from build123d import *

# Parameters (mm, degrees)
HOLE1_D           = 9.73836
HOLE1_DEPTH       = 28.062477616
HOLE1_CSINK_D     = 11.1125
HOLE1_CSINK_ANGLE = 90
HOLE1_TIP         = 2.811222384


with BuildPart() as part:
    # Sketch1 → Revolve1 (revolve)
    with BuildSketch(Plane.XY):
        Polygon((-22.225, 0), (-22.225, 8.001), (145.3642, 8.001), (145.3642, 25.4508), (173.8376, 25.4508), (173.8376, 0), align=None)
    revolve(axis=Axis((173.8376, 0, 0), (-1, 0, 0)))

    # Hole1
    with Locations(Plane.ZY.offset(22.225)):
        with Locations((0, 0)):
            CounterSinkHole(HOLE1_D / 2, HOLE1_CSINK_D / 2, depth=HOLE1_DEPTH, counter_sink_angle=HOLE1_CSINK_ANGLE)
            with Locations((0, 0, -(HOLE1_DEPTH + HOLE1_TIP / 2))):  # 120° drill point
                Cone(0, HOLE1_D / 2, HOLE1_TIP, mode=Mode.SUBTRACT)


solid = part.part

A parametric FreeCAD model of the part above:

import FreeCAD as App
import Part
import Sketcher

V = App.Vector
Q = App.Units.Quantity


def add_polygon(sketch, points):
    """Adds a closed chain of lines whose ends are joined by coincident constraints."""
    first, n = sketch.GeometryCount, len(points)
    for a, b in zip(points, points[1:] + points[:1]):
        sketch.addGeometry(Part.LineSegment(App.Vector(*a, 0), App.Vector(*b, 0)), False)
    for i in range(n):
        sketch.addConstraint(Sketcher.Constraint("Coincident", first + i, 2, first + (i + 1) % n, 1))

doc = App.newDocument("Part")
body = doc.addObject("PartDesign::Body", "Body")

sketch1 = body.newObject("Sketcher::SketchObject", "Sketch")
sketch1.AttachmentSupport = (doc.getObject("XY_Plane"), [""])
sketch1.MapMode = "FlatFace"
add_polygon(sketch1, [(-22, 8), (-22, 0), (174, 0), (174, 25), (145, 25), (145, 8)])
sketch1.addConstraint([
    Sketcher.Constraint("Vertical", 0),
    Sketcher.Constraint("Horizontal", 1),
    Sketcher.Constraint("Vertical", 2),
    Sketcher.Constraint("Horizontal", 3),
    Sketcher.Constraint("Vertical", 4),
    Sketcher.Constraint("Horizontal", 5),
    Sketcher.Constraint("PointOnObject", 0, 2, -1),
    Sketcher.Constraint("DistanceX", 1, 1, 1, 2, Q("7.719 in")),
    Sketcher.Constraint("DistanceX", 3, 2, 3, 1, Q("1.121 in")),
    Sketcher.Constraint("DistanceY", 0, 2, 0, 1, Q("0.315 in")),
    Sketcher.Constraint("DistanceY", 2, 1, 2, 2, Q("1.002 in")),
    Sketcher.Constraint("DistanceX", 0, 2, -1, 1, Q("0.875 in")),
])
revolution = body.newObject("PartDesign::Revolution", "Revolution")
revolution.Profile = sketch1
revolution.ReferenceAxis = (sketch1, ["H_Axis"])
revolution.Angle = 360

sketch2 = body.newObject("Sketcher::SketchObject", "Sketch001")
sketch2.AttachmentSupport = (doc.getObject("YZ_Plane"), [""])
sketch2.MapMode = "FlatFace"
sketch2.AttachmentOffset = App.Placement(V(0, 0, -0.875 * 25.4), App.Rotation())
sketch2.addGeometry(Part.Circle(V(0, 0, 0), V(0, 0, 1), 4.9), False)
sketch2.addConstraint([
    Sketcher.Constraint("Coincident", 0, 3, -1, 1),
    Sketcher.Constraint("Diameter", 0, Q("0.3834 in")),
])
doc.recompute()
hole = body.newObject("PartDesign::Hole", "Hole")
hole.Profile = sketch2
hole.ThreadType = "None"
hole.Diameter = Q("0.3834 in")
hole.DepthType = "Dimension"
hole.Depth = 28.062478
hole.DrillPoint = "Angled"
hole.DrillPointAngle = 120
hole.HoleCutType = "Countersink"
hole.HoleCutDiameter = Q("0.4375 in")
hole.HoleCutCountersinkAngle = 90
hole.Reversed = True

doc.recompute()
